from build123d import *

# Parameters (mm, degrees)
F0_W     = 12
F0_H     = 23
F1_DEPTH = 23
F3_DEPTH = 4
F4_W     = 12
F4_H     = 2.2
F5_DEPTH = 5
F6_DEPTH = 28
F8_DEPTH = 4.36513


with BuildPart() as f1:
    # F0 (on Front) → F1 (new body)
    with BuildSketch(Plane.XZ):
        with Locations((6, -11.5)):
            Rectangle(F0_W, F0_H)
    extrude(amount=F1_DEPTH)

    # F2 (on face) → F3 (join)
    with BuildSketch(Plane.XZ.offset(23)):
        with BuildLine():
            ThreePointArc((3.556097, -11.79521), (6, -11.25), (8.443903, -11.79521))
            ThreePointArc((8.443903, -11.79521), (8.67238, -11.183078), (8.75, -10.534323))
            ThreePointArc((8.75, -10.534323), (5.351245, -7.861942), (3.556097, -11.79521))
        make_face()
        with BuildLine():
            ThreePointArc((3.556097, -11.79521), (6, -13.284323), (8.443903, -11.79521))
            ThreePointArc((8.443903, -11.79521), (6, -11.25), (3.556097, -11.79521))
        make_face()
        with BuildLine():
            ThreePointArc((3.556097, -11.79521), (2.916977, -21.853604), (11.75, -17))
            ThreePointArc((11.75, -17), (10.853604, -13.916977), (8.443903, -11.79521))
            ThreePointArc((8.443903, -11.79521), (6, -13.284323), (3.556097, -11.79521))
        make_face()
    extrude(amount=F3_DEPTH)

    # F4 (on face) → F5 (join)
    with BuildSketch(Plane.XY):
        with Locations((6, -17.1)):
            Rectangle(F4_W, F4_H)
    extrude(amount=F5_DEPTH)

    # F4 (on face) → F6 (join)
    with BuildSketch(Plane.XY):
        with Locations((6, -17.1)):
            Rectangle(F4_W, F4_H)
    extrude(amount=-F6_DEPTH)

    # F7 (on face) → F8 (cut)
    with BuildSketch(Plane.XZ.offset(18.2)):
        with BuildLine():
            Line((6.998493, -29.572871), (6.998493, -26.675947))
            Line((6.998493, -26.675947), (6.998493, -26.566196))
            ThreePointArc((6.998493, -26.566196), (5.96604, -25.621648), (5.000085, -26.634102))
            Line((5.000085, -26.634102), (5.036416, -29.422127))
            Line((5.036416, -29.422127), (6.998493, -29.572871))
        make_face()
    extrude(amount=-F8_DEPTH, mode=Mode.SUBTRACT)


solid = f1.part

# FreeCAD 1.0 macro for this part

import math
import FreeCAD as App
import Part
import Sketcher

doc = App.newDocument("Part")
body = doc.addObject("PartDesign::Body", "Body")

sketch1 = body.newObject("Sketcher::SketchObject", "Sketch")
sketch1.AttachmentSupport = (doc.getObject("XZ_Plane"), [""])
sketch1.MapMode = "FlatFace"
sketch1.addGeometry([
    Part.LineSegment(App.Vector(0, 0, 0), App.Vector(0, -23, 0)),
    Part.LineSegment(App.Vector(0, -23, 0), App.Vector(12, -23, 0)),
    Part.LineSegment(App.Vector(12, -23, 0), App.Vector(12, 0, 0)),
    Part.LineSegment(App.Vector(12, 0, 0), App.Vector(0, 0, 0)),
], False)
sketch1.addConstraint([
    Sketcher.Constraint("Coincident", 0, 2, 1, 1),
    Sketcher.Constraint("Coincident", 1, 2, 2, 1),
    Sketcher.Constraint("Coincident", 2, 2, 3, 1),
    Sketcher.Constraint("Coincident", 3, 2, 0, 1),
    Sketcher.Constraint("Vertical", 0),
    Sketcher.Constraint("Horizontal", 1),
    Sketcher.Constraint("Vertical", 2),
    Sketcher.Constraint("Horizontal", 3),
    Sketcher.Constraint("Coincident", 3, 2, -1, 1),
    Sketcher.Constraint("DistanceX", 1, 1, 1, 2, 12.0),
    Sketcher.Constraint("DistanceY", 0, 2, 0, 1, 23.0),
])
pad1 = body.newObject("PartDesign::Pad", "Pad")
pad1.Profile = sketch1
pad1.Length = 23

sketch2 = body.newObject("Sketcher::SketchObject", "Sketch001")
sketch2.AttachmentSupport = (doc.getObject("XZ_Plane"), [""])
sketch2.MapMode = "FlatFace"
sketch2.AttachmentOffset = App.Placement(App.Vector(0, 0, 23), App.Rotation())
sketch2.addGeometry([
    Part.ArcOfCircle(Part.Circle(App.Vector(6, -10.5, 0), App.Vector(0, 0, 1), 2.8), math.radians(-27), math.radians(0)),
    Part.ArcOfCircle(Part.Circle(App.Vector(6, -10.5, 0), App.Vector(0, 0, 1), 2.7), math.radians(0), math.radians(207)),
    Part.ArcOfCircle(Part.Circle(App.Vector(6, -17, 0), App.Vector(0, 0, 1), 5.8), math.radians(115), math.radians(360)),
    Part.ArcOfCircle(Part.Circle(App.Vector(6, -17, 0), App.Vector(0, 0, 1), 5.7), math.radians(0), math.radians(65)),
], False)
sketch2.addConstraint([
    Sketcher.Constraint("Tangent", 0, 2, 1, 1),
    Sketcher.Constraint("Coincident", 1, 2, 2, 1),
    Sketcher.Constraint("Tangent", 2, 2, 3, 1),
    Sketcher.Constraint("Coincident", 3, 2, 0, 1),
    Sketcher.Constraint("Equal", 2, 3),
    Sketcher.Constraint("Horizontal", 1, 3, 0, 2),
    Sketcher.Constraint("Horizontal", 3, 3, 2, 2),
    Sketcher.Constraint("Horizontal", 1, 2, 3, 2),
    Sketcher.Constraint("Vertical", 1, 3, 2, 3),
    Sketcher.Constraint("Radius", 1, 2.75),
    Sketcher.Constraint("Radius", 2, 5.75),
    Sketcher.Constraint("DistanceX", -1, 1, 1, 3, 6.0),
    Sketcher.Constraint("DistanceY", 2, 3, -1, 1, 17.0),
    Sketcher.Constraint("DistanceX", 3, 3, 3, 2, 2.443902),
])
pad2 = body.newObject("PartDesign::Pad", "Pad001")
pad2.Profile = sketch2
pad2.Length = 4

sketch3 = body.newObject("Sketcher::SketchObject", "Sketch002")
sketch3.AttachmentSupport = (doc.getObject("XY_Plane"), [""])
sketch3.MapMode = "FlatFace"
sketch3.addGeometry([
    Part.LineSegment(App.Vector(0, -16, 0), App.Vector(0, -18.2, 0)),
    Part.LineSegment(App.Vector(0, -18.2, 0), App.Vector(12, -18.2, 0)),
    Part.LineSegment(App.Vector(12, -18.2, 0), App.Vector(12, -16, 0)),
    Part.LineSegment(App.Vector(12, -16, 0), App.Vector(0, -16, 0)),
], False)
sketch3.addConstraint([
    Sketcher.Constraint("Coincident", 0, 2, 1, 1),
    Sketcher.Constraint("Coincident", 1, 2, 2, 1),
    Sketcher.Constraint("Coincident", 2, 2, 3, 1),
    Sketcher.Constraint("Coincident", 3, 2, 0, 1),
    Sketcher.Constraint("Vertical", 0),
    Sketcher.Constraint("Horizontal", 1),
    Sketcher.Constraint("Vertical", 2),
    Sketcher.Constraint("Horizontal", 3),
    Sketcher.Constraint("PointOnObject", 0, 2, -2),
    Sketcher.Constraint("DistanceX", 1, 1, 1, 2, 12.0),
    Sketcher.Constraint("DistanceY", 0, 2, 0, 1, 2.2),
    Sketcher.Constraint("DistanceY", 2, 2, -1, 1, 16.0),
])
pad3 = body.newObject("PartDesign::Pad", "Pad002")
pad3.Profile = sketch3
pad3.Length = 5

sketch4 = body.newObject("Sketcher::SketchObject", "Sketch003")
sketch4.AttachmentSupport = (doc.getObject("XY_Plane"), [""])
sketch4.MapMode = "FlatFace"
sketch4.addGeometry([
    Part.LineSegment(App.Vector(0, -16, 0), App.Vector(0, -18.2, 0)),
    Part.LineSegment(App.Vector(0, -18.2, 0), App.Vector(12, -18.2, 0)),
    Part.LineSegment(App.Vector(12, -18.2, 0), App.Vector(12, -16, 0)),
    Part.LineSegment(App.Vector(12, -16, 0), App.Vector(0, -16, 0)),
], False)
sketch4.addConstraint([
    Sketcher.Constraint("Coincident", 0, 2, 1, 1),
    Sketcher.Constraint("Coincident", 1, 2, 2, 1),
    Sketcher.Constraint("Coincident", 2, 2, 3, 1),
    Sketcher.Constraint("Coincident", 3, 2, 0, 1),
    Sketcher.Constraint("Vertical", 0),
    Sketcher.Constraint("Horizontal", 1),
    Sketcher.Constraint("Vertical", 2),
    Sketcher.Constraint("Horizontal", 3),
    Sketcher.Constraint("PointOnObject", 0, 2, -2),
    Sketcher.Constraint("DistanceX", 1, 1, 1, 2, 12.0),
    Sketcher.Constraint("DistanceY", 0, 2, 0, 1, 2.2),
    Sketcher.Constraint("DistanceY", 2, 2, -1, 1, 16.0),
])
pad4 = body.newObject("PartDesign::Pad", "Pad003")
pad4.Profile = sketch4
pad4.Length = 28
pad4.Reversed = True

sketch5 = body.newObject("Sketcher::SketchObject", "Sketch004")
sketch5.AttachmentSupport = (doc.getObject("XZ_Plane"), [""])
sketch5.MapMode = "FlatFace"
sketch5.AttachmentOffset = App.Placement(App.Vector(0, 0, 18.2), App.Rotation())
sketch5.addGeometry([
    Part.LineSegment(App.Vector(7, -29.6, 0), App.Vector(7, -26.6, 0)),
    Part.ArcOfCircle(Part.Circle(App.Vector(6, -26.6, 0), App.Vector(0, 0, 1), 1), math.radians(3), math.radians(181)),
    Part.LineSegment(App.Vector(5, -26.6, 0), App.Vector(5, -29.4, 0)),
    Part.LineSegment(App.Vector(5, -29.4, 0), App.Vector(7, -29.6, 0)),
], False)
sketch5.addConstraint([
    Sketcher.Constraint("Coincident", 0, 2, 1, 1),
    Sketcher.Constraint("Tangent", 1, 2, 2, 1),
    Sketcher.Constraint("Coincident", 2, 2, 3, 1),
    Sketcher.Constraint("Coincident", 3, 2, 0, 1),
    Sketcher.Constraint("Vertical", 0),
    Sketcher.Constraint("Radius", 1, 1.0),
    Sketcher.Constraint("DistanceX", -1, 1, 1, 3, 6.0),
    Sketcher.Constraint("DistanceY", 1, 2, -1, 1, 26.634102),
    Sketcher.Constraint("DistanceY", 3, 2, 1, 3, 2.9518),
    Sketcher.Constraint("Distance", 2, 2.788262),
    Sketcher.Constraint("Distance", 3, 1.967859),
    Sketcher.Constraint("DistanceY", 0, 1, 0, 2, 3.006675),
])
pocket1 = body.newObject("PartDesign::Pocket", "Pocket")
pocket1.Profile = sketch5
pocket1.Length = 4.36513

doc.recompute()
